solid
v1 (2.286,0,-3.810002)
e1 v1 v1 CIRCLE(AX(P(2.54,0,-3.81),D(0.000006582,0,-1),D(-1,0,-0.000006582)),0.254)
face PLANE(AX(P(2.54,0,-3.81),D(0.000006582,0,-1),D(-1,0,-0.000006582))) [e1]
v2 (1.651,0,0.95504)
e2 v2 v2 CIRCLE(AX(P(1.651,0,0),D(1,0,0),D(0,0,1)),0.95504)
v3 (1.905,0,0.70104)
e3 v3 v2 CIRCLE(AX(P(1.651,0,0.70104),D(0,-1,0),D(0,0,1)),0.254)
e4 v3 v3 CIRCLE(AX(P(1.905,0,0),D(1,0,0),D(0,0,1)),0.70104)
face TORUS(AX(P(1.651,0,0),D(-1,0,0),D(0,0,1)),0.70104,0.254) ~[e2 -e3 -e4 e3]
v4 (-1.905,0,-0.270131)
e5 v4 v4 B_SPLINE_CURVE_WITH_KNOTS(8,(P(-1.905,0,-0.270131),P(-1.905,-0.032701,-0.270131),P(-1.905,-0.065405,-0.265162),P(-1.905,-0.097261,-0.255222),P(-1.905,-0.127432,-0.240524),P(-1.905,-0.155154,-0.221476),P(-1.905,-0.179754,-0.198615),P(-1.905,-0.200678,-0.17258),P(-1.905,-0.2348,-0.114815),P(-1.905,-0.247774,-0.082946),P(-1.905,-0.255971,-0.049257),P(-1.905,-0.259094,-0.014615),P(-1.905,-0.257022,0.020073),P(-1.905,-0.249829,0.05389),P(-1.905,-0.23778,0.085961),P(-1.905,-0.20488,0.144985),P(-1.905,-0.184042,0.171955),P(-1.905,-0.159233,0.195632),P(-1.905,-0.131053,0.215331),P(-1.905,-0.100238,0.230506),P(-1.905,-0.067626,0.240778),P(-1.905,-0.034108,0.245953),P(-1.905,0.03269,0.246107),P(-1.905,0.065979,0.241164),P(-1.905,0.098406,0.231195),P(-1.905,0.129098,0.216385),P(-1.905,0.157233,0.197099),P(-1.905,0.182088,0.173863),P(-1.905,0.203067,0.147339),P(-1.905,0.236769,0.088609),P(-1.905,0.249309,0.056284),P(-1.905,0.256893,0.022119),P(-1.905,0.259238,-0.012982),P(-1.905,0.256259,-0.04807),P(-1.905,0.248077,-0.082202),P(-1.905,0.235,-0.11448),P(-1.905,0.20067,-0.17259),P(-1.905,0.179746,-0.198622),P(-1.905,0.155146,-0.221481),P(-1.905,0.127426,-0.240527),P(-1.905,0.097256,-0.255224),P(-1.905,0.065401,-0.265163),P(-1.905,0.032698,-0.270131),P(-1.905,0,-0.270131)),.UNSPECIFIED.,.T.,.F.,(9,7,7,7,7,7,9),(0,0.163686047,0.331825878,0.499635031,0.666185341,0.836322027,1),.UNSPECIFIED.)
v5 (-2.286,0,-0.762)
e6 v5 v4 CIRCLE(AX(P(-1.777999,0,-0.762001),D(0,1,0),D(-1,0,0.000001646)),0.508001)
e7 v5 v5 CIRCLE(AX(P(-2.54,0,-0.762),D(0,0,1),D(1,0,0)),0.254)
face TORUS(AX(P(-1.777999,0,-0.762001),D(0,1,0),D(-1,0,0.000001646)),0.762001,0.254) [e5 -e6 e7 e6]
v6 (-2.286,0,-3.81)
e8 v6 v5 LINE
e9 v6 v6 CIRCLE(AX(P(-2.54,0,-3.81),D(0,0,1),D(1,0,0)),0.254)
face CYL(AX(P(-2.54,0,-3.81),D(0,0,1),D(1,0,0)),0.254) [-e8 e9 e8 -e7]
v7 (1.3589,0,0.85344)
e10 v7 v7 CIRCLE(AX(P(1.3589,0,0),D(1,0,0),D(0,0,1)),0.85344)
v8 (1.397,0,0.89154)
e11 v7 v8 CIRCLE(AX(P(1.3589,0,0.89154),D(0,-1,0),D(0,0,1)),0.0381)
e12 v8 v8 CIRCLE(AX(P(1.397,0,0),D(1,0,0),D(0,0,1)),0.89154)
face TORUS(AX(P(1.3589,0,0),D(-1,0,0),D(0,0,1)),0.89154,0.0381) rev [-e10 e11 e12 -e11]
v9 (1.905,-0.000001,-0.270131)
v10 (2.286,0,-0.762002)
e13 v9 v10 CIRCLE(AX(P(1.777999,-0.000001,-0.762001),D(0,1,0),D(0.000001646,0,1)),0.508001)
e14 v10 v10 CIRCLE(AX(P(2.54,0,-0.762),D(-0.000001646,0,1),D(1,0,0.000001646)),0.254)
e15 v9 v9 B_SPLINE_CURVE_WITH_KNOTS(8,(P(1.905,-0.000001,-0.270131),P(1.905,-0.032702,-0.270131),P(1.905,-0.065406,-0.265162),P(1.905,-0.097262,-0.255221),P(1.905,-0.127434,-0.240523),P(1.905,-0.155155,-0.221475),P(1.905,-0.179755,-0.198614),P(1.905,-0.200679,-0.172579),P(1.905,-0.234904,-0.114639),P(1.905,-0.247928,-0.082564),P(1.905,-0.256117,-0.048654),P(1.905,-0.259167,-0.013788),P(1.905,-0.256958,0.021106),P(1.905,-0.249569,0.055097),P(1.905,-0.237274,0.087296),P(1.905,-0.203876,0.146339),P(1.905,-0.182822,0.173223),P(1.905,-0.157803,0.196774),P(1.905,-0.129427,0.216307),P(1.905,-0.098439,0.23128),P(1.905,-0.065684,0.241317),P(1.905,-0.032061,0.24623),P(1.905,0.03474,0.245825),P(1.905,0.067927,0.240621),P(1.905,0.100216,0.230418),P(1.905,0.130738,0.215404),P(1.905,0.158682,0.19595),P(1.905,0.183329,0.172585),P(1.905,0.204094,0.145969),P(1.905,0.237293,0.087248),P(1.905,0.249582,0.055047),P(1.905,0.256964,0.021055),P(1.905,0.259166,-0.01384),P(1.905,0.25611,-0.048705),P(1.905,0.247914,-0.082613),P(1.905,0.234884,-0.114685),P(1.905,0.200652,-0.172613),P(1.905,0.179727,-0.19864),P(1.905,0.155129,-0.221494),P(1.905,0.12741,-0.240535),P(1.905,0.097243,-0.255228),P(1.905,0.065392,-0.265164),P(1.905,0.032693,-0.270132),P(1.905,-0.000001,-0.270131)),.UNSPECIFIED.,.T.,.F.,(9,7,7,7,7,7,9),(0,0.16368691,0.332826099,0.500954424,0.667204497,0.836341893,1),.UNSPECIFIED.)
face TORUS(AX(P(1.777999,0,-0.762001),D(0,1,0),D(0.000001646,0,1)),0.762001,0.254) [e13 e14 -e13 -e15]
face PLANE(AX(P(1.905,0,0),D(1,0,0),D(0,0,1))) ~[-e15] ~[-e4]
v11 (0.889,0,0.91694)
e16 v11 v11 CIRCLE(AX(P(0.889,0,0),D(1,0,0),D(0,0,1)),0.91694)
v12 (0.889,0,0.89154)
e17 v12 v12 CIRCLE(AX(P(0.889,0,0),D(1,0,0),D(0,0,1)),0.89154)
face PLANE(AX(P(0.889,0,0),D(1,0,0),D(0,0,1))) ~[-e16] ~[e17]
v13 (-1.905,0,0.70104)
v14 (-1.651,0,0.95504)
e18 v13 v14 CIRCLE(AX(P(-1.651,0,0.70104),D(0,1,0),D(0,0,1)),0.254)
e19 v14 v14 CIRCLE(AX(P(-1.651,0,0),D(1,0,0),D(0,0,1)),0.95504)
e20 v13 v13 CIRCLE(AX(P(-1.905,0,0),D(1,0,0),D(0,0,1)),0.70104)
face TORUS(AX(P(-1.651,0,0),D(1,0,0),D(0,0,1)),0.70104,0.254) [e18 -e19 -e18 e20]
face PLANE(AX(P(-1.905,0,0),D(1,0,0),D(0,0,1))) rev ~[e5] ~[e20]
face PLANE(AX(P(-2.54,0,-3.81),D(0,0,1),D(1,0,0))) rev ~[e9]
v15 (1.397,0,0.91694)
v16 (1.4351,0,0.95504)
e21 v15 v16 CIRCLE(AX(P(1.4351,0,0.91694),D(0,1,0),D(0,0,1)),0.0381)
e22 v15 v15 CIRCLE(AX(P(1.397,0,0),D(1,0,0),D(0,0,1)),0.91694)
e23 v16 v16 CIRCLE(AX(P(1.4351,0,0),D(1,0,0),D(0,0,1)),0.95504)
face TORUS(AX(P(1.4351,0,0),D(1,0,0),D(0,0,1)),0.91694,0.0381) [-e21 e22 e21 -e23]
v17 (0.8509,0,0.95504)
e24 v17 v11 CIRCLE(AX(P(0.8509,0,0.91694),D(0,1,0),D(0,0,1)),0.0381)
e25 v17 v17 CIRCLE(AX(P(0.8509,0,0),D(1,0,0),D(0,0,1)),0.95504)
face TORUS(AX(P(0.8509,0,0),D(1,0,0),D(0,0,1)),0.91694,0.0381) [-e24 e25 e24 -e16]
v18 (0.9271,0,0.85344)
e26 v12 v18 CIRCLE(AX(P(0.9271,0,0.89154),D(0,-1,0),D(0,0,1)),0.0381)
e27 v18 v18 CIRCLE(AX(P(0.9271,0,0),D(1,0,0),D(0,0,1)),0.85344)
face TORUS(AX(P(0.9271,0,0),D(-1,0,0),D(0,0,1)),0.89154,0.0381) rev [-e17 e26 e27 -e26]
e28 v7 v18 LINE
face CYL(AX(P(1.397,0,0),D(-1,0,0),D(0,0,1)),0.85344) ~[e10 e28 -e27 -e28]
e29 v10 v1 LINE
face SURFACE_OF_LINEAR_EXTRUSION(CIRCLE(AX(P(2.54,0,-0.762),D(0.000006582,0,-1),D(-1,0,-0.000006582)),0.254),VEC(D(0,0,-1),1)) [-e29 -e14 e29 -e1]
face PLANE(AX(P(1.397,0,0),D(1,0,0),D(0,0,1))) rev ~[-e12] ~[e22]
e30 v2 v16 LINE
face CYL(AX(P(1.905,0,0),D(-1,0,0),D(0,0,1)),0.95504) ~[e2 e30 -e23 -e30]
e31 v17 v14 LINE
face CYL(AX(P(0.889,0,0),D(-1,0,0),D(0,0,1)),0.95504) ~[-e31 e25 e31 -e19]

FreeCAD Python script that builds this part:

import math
import FreeCAD as App
import Part
import Sketcher
from FreeCAD import Vector
Q = App.Units.Quantity


def edges_at(feature, points):
    """Names of the edges that pass closest to the given points."""
    edges = feature.Shape.Edges
    near = lambda p: min(range(len(edges)), key=lambda i: edges[i].distToShape(Part.Vertex(*p))[0])
    return sorted({f"Edge{near(p) + 1}" for p in points})

doc = App.newDocument("Part")
body = doc.addObject("PartDesign::Body", "Body")

# Sketch on XZ plane
sketch1 = doc.addObject("Sketcher::SketchObject", "Sketch")
body.addObject(sketch1)
sketch1.AttachmentSupport = (doc.XZ_Plane, [""])
sketch1.MapMode = "FlatFace"
sketch1.addGeometry([
    Part.LineSegment(Vector(-1.91, 0.96, 0), Vector(-1.91, 0, 0)),  # 0
    Part.LineSegment(Vector(-1.91, 0, 0), Vector(1.91, 0, 0)),  # 1
    Part.LineSegment(Vector(1.91, 0, 0), Vector(1.91, 0.96, 0)),  # 2
    Part.LineSegment(Vector(1.91, 0.96, 0), Vector(1.4, 0.96, 0)),  # 3
    Part.LineSegment(Vector(1.4, 0.96, 0), Vector(1.4, 0.85, 0)),  # 4
    Part.LineSegment(Vector(1.4, 0.85, 0), Vector(0.89, 0.85, 0)),  # 5
    Part.LineSegment(Vector(0.89, 0.85, 0), Vector(0.89, 0.96, 0)),  # 6
    Part.LineSegment(Vector(0.89, 0.96, 0), Vector(-1.91, 0.96, 0)),  # 7
], False)
sketch1.addConstraint([
    Sketcher.Constraint("Coincident", 0, 2, 1, 1),
    Sketcher.Constraint("Coincident", 1, 2, 2, 1),
    Sketcher.Constraint("Coincident", 2, 2, 3, 1),
    Sketcher.Constraint("Coincident", 3, 2, 4, 1),
    Sketcher.Constraint("Coincident", 4, 2, 5, 1),
    Sketcher.Constraint("Coincident", 5, 2, 6, 1),
    Sketcher.Constraint("Coincident", 6, 2, 7, 1),
    Sketcher.Constraint("Coincident", 7, 2, 0, 1),
    Sketcher.Constraint("Vertical", 0),
    Sketcher.Constraint("Horizontal", 1),
    Sketcher.Constraint("Vertical", 2),
    Sketcher.Constraint("Horizontal", 3),
    Sketcher.Constraint("Vertical", 4),
    Sketcher.Constraint("Horizontal", 5),
    Sketcher.Constraint("Vertical", 6),
    Sketcher.Constraint("Horizontal", 7),
    Sketcher.Constraint("Symmetric", 0, 2, 1, 2, -1, 1),
    Sketcher.Constraint("Horizontal", 3, 2, 6, 2),
    Sketcher.Constraint("Equal", 3, 5),
    Sketcher.Constraint("DistanceX", 1, 1, 1, 2, Q("0.15 in")),
    Sketcher.Constraint("DistanceX", 3, 2, 3, 1, Q("0.02 in")),
    Sketcher.Constraint("DistanceY", 4, 2, 4, 1, Q("0.004 in")),
    Sketcher.Constraint("DistanceY", 0, 2, 0, 1, Q("0.0376 in")),
])
revolution = doc.addObject("PartDesign::Revolution", "Revolution")
body.addObject(revolution)
revolution.Profile = sketch1
revolution.ReferenceAxis = (sketch1, ["H_Axis"])
revolution.Angle = 360
doc.recompute()

fillet = doc.addObject("PartDesign::Fillet", "Fillet")
body.addObject(fillet)
fillet.Base = (revolution, edges_at(revolution, [(1.905, 0, -0.955), (-1.905, 0, -0.955)]))
fillet.Radius = Q("0.01 in")
doc.recompute()

fillet2 = doc.addObject("PartDesign::Fillet", "Fillet001")
body.addObject(fillet2)
fillet2.Base = (fillet, edges_at(fillet, [
    (1.397, 0, -0.955),
    (1.397, 0, -0.853),
    (0.889, 0, -0.853),
    (0.889, 0, -0.955),
]))
fillet2.Radius = Q("0.0015 in")

# Sketch on XY plane
sketch2 = doc.addObject("Sketcher::SketchObject", "Sketch001")
body.addObject(sketch2)
sketch2.AttachmentSupport = (doc.XY_Plane, [""])
sketch2.MapMode = "FlatFace"
sketch2.AttachmentOffset = App.Placement(Vector(0, 0, -0.15 * 25.4), App.Rotation())
sketch2.addGeometry(Part.Circle(Vector(-2.54, 0, 0), Vector(0, 0, 1), 0.25), False)
sketch2.addConstraint([
    Sketcher.Constraint("PointOnObject", 0, 3, -1),
    Sketcher.Constraint("Diameter", 0, Q("0.02 in")),
    Sketcher.Constraint("DistanceX", 0, 3, -1, 1, Q("0.1 in")),
])

# Sketch on XZ plane
sketch3 = doc.addObject("Sketcher::SketchObject", "Sketch002")
body.addObject(sketch3)
sketch3.AttachmentSupport = (doc.XZ_Plane, [""])
sketch3.MapMode = "FlatFace"
sketch3.addGeometry([
    Part.LineSegment(Vector(-2.5, -3.8, 0), Vector(-2.5, -0.8, 0)),  # 0
    Part.ArcOfCircle(Part.Circle(Vector(-1.8, -0.8, 0), Vector(0, 0, 1), 0.8), math.radians(90), math.radians(180)),  # 1
    Part.LineSegment(Vector(-1.8, 0, 0), Vector(1.8, 0, 0)),  # 2
    Part.ArcOfCircle(Part.Circle(Vector(1.8, -0.8, 0), Vector(0, 0, 1), 0.8), math.radians(0), math.radians(90)),  # 3
    Part.LineSegment(Vector(2.5, -0.8, 0), Vector(2.5, -3.8, 0)),  # 4
], False)
sketch3.addConstraint([
    Sketcher.Constraint("Tangent", 0, 2, 1, 2),
    Sketcher.Constraint("Tangent", 1, 1, 2, 1),
    Sketcher.Constraint("Tangent", 2, 2, 3, 2),
    Sketcher.Constraint("Tangent", 3, 1, 4, 1),
    Sketcher.Constraint("Vertical", 0),
    Sketcher.Constraint("Horizontal", 2),
    Sketcher.Constraint("Vertical", 4),
    Sketcher.Constraint("Equal", 1, 3),
    Sketcher.Constraint("Symmetric", 1, 1, 2, 2, -1, 1),
    Sketcher.Constraint("Horizontal", 0, 1, 4, 2),
    Sketcher.Constraint("Radius", 1, Q("0.03 in")),
    Sketcher.Constraint("DistanceX", 2, 1, 2, 2, Q("0.14 in")),
    Sketcher.Constraint("DistanceY", 0, 1, 0, 2, Q("0.12 in")),
])
doc.recompute()

additivepipe = doc.addObject("PartDesign::AdditivePipe", "AdditivePipe")
body.addObject(additivepipe)
additivepipe.Profile = sketch2
additivepipe.Spine = (sketch3, ["Edge1", "Edge2", "Edge3", "Edge4", "Edge5"])

doc.recompute()
